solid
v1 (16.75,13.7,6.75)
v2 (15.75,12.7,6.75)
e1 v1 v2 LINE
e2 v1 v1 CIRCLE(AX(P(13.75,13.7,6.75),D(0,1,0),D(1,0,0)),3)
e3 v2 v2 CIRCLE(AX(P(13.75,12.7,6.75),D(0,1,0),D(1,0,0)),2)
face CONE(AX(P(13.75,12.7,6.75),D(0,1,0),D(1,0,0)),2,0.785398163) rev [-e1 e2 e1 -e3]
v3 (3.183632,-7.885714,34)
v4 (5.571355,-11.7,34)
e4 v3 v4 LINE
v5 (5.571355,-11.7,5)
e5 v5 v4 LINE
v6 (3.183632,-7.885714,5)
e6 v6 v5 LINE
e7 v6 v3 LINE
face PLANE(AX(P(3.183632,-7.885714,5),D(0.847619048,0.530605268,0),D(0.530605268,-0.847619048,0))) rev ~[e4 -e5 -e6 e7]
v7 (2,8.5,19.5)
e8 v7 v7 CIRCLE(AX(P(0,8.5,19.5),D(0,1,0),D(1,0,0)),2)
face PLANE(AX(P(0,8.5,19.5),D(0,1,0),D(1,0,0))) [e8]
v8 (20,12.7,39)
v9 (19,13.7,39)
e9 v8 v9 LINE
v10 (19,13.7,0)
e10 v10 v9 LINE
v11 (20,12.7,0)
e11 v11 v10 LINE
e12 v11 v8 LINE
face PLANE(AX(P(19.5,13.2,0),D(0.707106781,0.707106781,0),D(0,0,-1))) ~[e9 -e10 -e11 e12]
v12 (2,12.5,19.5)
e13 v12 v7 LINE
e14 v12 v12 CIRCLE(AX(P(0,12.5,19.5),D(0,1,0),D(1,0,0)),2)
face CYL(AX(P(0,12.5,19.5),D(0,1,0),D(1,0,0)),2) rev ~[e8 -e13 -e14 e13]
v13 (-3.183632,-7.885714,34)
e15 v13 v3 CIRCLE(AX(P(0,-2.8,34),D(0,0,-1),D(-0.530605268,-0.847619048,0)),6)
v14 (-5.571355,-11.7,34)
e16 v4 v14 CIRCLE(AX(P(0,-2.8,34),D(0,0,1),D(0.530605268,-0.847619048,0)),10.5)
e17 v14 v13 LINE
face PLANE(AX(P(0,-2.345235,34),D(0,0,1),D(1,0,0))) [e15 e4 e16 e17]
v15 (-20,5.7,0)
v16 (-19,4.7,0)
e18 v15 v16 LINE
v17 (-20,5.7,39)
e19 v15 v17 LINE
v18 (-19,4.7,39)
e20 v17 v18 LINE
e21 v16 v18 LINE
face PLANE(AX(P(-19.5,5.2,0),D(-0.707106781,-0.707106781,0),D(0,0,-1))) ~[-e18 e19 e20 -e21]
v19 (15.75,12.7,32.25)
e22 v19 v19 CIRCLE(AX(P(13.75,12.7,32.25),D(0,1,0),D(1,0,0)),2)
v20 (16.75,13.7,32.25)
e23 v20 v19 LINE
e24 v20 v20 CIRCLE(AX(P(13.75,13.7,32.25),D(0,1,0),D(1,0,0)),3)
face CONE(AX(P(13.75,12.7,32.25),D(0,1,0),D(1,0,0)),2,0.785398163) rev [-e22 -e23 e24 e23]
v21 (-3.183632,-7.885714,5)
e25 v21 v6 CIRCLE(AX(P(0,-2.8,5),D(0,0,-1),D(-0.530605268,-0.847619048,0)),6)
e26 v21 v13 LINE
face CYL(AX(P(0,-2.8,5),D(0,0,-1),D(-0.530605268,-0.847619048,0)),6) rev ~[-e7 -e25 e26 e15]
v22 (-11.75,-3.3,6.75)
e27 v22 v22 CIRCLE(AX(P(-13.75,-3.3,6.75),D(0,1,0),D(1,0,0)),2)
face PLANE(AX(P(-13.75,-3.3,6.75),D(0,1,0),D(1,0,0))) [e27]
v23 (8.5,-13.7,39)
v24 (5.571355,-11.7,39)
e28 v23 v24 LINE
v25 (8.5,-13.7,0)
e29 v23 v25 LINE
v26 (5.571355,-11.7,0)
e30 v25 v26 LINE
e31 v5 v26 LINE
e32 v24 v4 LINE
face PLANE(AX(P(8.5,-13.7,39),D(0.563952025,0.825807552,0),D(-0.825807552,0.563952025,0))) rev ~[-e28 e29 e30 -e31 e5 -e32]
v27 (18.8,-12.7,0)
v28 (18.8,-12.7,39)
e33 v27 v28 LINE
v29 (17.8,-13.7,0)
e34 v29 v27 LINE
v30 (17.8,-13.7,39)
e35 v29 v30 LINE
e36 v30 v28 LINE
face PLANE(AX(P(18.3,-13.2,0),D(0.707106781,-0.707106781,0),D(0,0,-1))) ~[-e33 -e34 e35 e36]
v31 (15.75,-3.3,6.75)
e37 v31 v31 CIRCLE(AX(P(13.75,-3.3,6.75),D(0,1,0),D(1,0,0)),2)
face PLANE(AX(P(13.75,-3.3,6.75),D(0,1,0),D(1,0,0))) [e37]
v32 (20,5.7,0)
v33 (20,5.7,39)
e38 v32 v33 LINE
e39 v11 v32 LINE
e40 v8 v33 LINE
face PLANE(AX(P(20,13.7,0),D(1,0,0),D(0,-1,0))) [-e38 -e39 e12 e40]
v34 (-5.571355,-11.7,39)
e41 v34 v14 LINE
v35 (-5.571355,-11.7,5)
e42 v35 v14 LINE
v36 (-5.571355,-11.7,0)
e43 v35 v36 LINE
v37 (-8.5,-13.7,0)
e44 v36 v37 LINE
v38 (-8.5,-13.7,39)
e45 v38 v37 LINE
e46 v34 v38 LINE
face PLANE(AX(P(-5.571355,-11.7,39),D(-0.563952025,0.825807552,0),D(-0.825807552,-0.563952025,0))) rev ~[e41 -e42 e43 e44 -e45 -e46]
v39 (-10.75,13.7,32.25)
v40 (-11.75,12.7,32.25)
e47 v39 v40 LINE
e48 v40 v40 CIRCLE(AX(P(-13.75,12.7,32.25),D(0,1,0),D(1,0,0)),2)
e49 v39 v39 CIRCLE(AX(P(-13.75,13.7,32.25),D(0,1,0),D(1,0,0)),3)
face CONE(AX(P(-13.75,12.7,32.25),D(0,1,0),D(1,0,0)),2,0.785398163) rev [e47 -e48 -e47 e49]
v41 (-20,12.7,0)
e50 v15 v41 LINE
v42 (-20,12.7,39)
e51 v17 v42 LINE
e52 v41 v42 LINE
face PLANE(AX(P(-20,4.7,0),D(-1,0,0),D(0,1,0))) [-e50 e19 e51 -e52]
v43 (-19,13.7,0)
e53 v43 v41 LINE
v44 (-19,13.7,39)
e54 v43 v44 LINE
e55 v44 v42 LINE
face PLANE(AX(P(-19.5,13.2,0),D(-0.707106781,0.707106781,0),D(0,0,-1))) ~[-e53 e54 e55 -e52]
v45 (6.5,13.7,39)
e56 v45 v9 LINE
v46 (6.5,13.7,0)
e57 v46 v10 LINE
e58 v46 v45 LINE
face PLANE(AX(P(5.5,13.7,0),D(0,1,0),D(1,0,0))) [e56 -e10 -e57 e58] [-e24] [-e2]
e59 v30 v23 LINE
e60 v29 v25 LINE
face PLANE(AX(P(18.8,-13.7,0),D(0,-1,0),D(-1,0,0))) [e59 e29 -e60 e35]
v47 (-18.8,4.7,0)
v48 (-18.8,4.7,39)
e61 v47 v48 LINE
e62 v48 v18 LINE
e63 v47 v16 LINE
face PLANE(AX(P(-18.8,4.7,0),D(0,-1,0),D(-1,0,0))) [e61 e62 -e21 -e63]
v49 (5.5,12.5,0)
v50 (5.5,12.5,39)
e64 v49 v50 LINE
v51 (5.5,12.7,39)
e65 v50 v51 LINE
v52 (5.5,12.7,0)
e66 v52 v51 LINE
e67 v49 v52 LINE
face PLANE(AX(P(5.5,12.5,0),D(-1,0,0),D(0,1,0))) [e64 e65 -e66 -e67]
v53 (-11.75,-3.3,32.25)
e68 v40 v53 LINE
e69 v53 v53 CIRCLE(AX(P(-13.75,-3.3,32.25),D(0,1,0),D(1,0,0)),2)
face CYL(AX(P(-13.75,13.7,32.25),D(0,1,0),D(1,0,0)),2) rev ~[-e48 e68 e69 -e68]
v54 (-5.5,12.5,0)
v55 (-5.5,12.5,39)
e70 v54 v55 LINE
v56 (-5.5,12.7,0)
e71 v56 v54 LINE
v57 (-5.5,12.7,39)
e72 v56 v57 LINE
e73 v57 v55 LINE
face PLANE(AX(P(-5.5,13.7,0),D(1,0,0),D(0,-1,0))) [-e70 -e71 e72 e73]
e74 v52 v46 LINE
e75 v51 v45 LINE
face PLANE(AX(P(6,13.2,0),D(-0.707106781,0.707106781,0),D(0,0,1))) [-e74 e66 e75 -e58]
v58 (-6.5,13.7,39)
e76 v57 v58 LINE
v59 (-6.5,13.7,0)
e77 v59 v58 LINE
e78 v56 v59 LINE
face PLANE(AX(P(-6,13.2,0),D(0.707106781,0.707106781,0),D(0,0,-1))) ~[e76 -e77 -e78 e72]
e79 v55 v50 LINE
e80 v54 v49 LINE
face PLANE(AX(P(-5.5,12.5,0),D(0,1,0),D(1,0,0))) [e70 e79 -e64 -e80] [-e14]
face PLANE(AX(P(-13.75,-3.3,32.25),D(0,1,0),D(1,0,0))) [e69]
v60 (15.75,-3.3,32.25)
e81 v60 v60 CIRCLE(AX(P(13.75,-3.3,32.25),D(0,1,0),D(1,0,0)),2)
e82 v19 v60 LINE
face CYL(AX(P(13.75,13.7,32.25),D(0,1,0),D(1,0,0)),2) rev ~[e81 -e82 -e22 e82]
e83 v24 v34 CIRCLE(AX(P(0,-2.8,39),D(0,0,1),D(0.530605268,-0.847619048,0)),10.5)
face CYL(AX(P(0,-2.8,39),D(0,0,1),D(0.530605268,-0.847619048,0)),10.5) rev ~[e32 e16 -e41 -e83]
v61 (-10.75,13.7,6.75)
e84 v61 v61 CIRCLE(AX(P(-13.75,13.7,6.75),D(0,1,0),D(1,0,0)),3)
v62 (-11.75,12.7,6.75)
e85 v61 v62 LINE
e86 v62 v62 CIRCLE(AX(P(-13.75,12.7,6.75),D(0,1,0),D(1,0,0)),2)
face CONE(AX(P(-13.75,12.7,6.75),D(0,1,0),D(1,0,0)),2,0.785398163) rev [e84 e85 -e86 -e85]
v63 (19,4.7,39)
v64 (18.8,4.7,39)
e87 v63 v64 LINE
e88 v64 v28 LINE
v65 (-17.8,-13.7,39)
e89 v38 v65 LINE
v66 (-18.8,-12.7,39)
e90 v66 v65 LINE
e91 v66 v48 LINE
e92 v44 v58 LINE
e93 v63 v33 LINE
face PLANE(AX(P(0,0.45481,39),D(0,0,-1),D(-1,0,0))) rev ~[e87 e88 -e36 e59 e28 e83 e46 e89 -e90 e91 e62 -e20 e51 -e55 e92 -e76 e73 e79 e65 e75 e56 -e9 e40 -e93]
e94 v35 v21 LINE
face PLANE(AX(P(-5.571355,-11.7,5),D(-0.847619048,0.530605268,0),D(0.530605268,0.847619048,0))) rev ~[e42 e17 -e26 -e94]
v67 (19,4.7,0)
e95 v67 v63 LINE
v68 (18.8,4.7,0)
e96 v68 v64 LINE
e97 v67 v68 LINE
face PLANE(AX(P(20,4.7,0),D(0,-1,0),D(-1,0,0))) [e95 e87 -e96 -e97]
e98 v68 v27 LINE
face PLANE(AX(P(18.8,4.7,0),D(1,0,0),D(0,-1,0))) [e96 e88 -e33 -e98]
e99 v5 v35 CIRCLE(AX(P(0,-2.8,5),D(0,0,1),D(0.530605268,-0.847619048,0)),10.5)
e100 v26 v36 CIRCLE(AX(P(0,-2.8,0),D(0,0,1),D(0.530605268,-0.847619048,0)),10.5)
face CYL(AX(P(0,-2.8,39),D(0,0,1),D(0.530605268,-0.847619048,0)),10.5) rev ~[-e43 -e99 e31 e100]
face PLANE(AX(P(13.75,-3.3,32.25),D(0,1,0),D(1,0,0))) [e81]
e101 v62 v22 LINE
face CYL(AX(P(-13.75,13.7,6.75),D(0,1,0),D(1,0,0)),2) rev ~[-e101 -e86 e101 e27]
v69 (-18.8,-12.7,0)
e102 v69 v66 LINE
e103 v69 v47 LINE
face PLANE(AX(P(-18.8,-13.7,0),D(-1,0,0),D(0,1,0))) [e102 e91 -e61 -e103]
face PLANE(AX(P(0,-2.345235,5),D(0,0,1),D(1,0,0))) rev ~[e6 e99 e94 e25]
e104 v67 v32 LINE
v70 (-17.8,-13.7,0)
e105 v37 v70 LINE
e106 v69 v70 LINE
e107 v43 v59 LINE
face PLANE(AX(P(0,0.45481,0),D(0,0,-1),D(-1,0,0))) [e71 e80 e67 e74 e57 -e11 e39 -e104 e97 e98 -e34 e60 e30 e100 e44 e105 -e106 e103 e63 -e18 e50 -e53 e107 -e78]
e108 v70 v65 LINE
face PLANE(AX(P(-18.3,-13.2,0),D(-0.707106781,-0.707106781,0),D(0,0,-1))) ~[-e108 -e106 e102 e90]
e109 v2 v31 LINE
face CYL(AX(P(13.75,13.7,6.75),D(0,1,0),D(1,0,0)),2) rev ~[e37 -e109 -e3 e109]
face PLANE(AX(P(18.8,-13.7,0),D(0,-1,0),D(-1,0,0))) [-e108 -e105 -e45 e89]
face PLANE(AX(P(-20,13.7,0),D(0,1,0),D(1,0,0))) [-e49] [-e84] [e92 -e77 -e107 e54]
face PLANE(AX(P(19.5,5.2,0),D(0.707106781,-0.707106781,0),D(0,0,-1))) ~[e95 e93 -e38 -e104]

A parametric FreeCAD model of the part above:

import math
import FreeCAD as App
import Part
import Sketcher
from FreeCAD import Vector


def edges_at(feature, points):
    """Names of the edges that pass closest to the given points."""
    edges = feature.Shape.Edges
    near = lambda p: min(range(len(edges)), key=lambda i: edges[i].distToShape(Part.Vertex(*p))[0])
    return sorted({f"Edge{near(p) + 1}" for p in points})


def add_polygon(sketch, points):
    """Adds a closed chain of lines whose ends are joined by coincident constraints."""
    first, n = sketch.GeometryCount, len(points)
    for a, b in zip(points, points[1:] + points[:1]):
        sketch.addGeometry(Part.LineSegment(App.Vector(*a, 0), App.Vector(*b, 0)), False)
    for i in range(n):
        sketch.addConstraint(Sketcher.Constraint("Coincident", first + i, 2, first + (i + 1) % n, 1))

doc = App.newDocument("Part")
body = doc.addObject("PartDesign::Body", "Body")

sketch1 = body.newObject("Sketcher::SketchObject", "Sketch")
sketch1.AttachmentSupport = (doc.getObject("XY_Plane"), [""])
sketch1.MapMode = "FlatFace"
add_polygon(sketch1, [(-5.5, 12.5), (-5.5, 13.7), (-20, 13.7), (-20, 4.7), (-18.8, 4.7), (-18.8, -13.7), (18.8, -13.7), (18.8, 4.7), (20, 4.7), (20, 13.7), (5.5, 13.7), (5.5, 12.5)])
sketch1.addConstraint([
    Sketcher.Constraint("Vertical", 0),
    Sketcher.Constraint("Horizontal", 1),
    Sketcher.Constraint("Vertical", 2),
    Sketcher.Constraint("Horizontal", 3),
    Sketcher.Constraint("Vertical", 4),
    Sketcher.Constraint("Horizontal", 5),
    Sketcher.Constraint("Vertical", 6),
    Sketcher.Constraint("Horizontal", 7),
    Sketcher.Constraint("Vertical", 8),
    Sketcher.Constraint("Horizontal", 9),
    Sketcher.Constraint("Vertical", 10),
    Sketcher.Constraint("Horizontal", 11),
    Sketcher.Constraint("Symmetric", 3, 2, 6, 2, -2),
    Sketcher.Constraint("Symmetric", 1, 2, 8, 2, -2),
    Sketcher.Constraint("Equal", 1, 9),
    Sketcher.Constraint("Equal", 7, 0),
    Sketcher.Constraint("DistanceX", 11, 2, 11, 1, 11.0),
    Sketcher.Constraint("DistanceY", 2, 2, 2, 1, 9.0),
    Sketcher.Constraint("DistanceX", 1, 2, 1, 1, 14.5),
    Sketcher.Constraint("DistanceX", 3, 1, 3, 2, 1.2),
    Sketcher.Constraint("DistanceY", 4, 2, 4, 1, 18.4),
    Sketcher.Constraint("DistanceY", -1, 1, 0, 2, 13.7),
])
pad1 = body.newObject("PartDesign::Pad", "Pad")
pad1.Profile = sketch1
pad1.Length = 39

sketch2 = body.newObject("Sketcher::SketchObject", "Sketch001")
sketch2.AttachmentSupport = (doc.getObject("XY_Plane"), [""])
sketch2.MapMode = "FlatFace"
sketch2.AttachmentOffset = App.Placement(Vector(0, 0, 39), App.Rotation())
sketch2.addGeometry([
    Part.LineSegment(Vector(-5.571355, -11.7, 0), Vector(-8.5, -13.7, 0)),
    Part.LineSegment(Vector(-8.5, -13.7, 0), Vector(8.5, -13.7, 0)),
    Part.LineSegment(Vector(8.5, -13.7, 0), Vector(5.571355, -11.7, 0)),
    Part.ArcOfCircle(Part.Circle(Vector(0, -2.8, 0), Vector(0, 0, 1), 10.5), math.radians(-57.953641), math.radians(237.953641)),
], False)
sketch2.addConstraint([
    Sketcher.Constraint("Coincident", 0, 2, 1, 1),
    Sketcher.Constraint("Coincident", 1, 2, 2, 1),
    Sketcher.Constraint("Coincident", 2, 2, 3, 1),
    Sketcher.Constraint("Coincident", 3, 2, 0, 1),
    Sketcher.Constraint("Horizontal", 1),
    Sketcher.Constraint("Symmetric", 2, 2, 3, 2, -2),
    Sketcher.Constraint("Equal", 0, 2),
    Sketcher.Constraint("Radius", 3, 10.5),
    Sketcher.Constraint("DistanceX", 1, 1, 1, 2, 17.0),
    Sketcher.Constraint("DistanceY", 1, 2, 2, 2, 2.0),
    Sketcher.Constraint("DistanceY", 3, 3, -1, 1, 2.8),
    Sketcher.Constraint("DistanceY", 0, 2, -1, 1, 13.7),
])
pocket1 = body.newObject("PartDesign::Pocket", "Pocket")
pocket1.Profile = sketch2
pocket1.Length = 39

sketch3 = body.newObject("Sketcher::SketchObject", "Sketch002")
sketch3.AttachmentSupport = (doc.getObject("XY_Plane"), [""])
sketch3.MapMode = "FlatFace"
sketch3.AttachmentOffset = App.Placement(Vector(0, 0, 5), App.Rotation())
sketch3.addGeometry([
    Part.LineSegment(Vector(5.571355, -11.7, 0), Vector(3.183632, -7.885714, 0)),
    Part.ArcOfCircle(Part.Circle(Vector(0, -2.8, 0), Vector(0, 0, 1), 6), math.radians(-57.953641), math.radians(237.953641)),
    Part.LineSegment(Vector(-3.183632, -7.885714, 0), Vector(-5.571355, -11.7, 0)),
    Part.ArcOfCircle(Part.Circle(Vector(0, -2.8, 0), Vector(0, 0, 1), 10.5), math.radians(-57.953641), math.radians(237.953641)),
], False)
sketch3.addConstraint([
    Sketcher.Constraint("Coincident", 0, 2, 1, 1),
    Sketcher.Constraint("Coincident", 1, 2, 2, 1),
    Sketcher.Constraint("Coincident", 2, 2, 3, 2),
    Sketcher.Constraint("Coincident", 3, 1, 0, 1),
    Sketcher.Constraint("Coincident", 3, 3, 1, 3),
    Sketcher.Constraint("Symmetric", 0, 2, 1, 2, -2),
    Sketcher.Constraint("Horizontal", 2, 2, 3, 1),
    Sketcher.Constraint("Radius", 1, 6.0),
    Sketcher.Constraint("Radius", 3, 10.5),
    Sketcher.Constraint("DistanceY", 1, 3, -1, 1, 2.8),
    Sketcher.Constraint("DistanceY", 2, 2, -1, 1, 11.7),
    Sketcher.Constraint("DistanceX", -1, 1, 0, 2, 3.183632),
])
pad2 = body.newObject("PartDesign::Pad", "Pad001")
pad2.Profile = sketch3
pad2.Length = 29

sketch4 = body.newObject("Sketcher::SketchObject", "Sketch003")
sketch4.AttachmentSupport = (doc.getObject("XZ_Plane"), [""])
sketch4.MapMode = "FlatFace"
sketch4.AttachmentOffset = App.Placement(Vector(0, 0, -13.7), App.Rotation())
sketch4.addGeometry([
    Part.Circle(Vector(13.75, 32.25, 0), Vector(0, 0, 1), 2),
    Part.Circle(Vector(-13.75, 32.25, 0), Vector(0, 0, 1), 2),
    Part.Circle(Vector(13.75, 6.75, 0), Vector(0, 0, 1), 2),
    Part.Circle(Vector(-13.75, 6.75, 0), Vector(0, 0, 1), 2),
], False)
sketch4.addConstraint([
    Sketcher.Constraint("Equal", 0, 1),
    Sketcher.Constraint("Equal", 1, 2),
    Sketcher.Constraint("Equal", 2, 3),
    Sketcher.Constraint("Symmetric", 0, 3, 1, 3, -2),
    Sketcher.Constraint("Symmetric", 2, 3, 3, 3, -2),
    Sketcher.Constraint("Vertical", 0, 3, 2, 3),
    Sketcher.Constraint("Diameter", 0, 4.0),
    Sketcher.Constraint("DistanceX", 1, 3, 0, 3, 27.5),
    Sketcher.Constraint("DistanceY", 2, 3, 0, 3, 25.5),
    Sketcher.Constraint("DistanceY", -1, 1, 0, 3, 32.25),
])
pocket2 = body.newObject("PartDesign::Pocket", "Pocket001")
pocket2.Profile = sketch4
pocket2.Length = 17
pocket2.Reversed = True

sketch5 = body.newObject("Sketcher::SketchObject", "Sketch004")
sketch5.AttachmentSupport = (doc.getObject("XZ_Plane"), [""])
sketch5.MapMode = "FlatFace"
sketch5.AttachmentOffset = App.Placement(Vector(0, 0, -12.5), App.Rotation())
sketch5.addGeometry(Part.Circle(Vector(0, 19.5, 0), Vector(0, 0, 1), 2), False)
sketch5.addConstraint([
    Sketcher.Constraint("PointOnObject", 0, 3, -2),
    Sketcher.Constraint("Diameter", 0, 4.0),
    Sketcher.Constraint("DistanceY", -1, 1, 0, 3, 19.5),
])
pocket3 = body.newObject("PartDesign::Pocket", "Pocket002")
pocket3.Profile = sketch5
pocket3.Length = 4
pocket3.Reversed = True
doc.recompute()

chamfer = body.newObject("PartDesign::Chamfer", "Chamfer")
chamfer.Base = (pocket3, edges_at(pocket3, [
    (20, 4.7, 19.5),
    (18.8, -13.7, 19.5),
    (-18.8, -13.7, 19.5),
    (-20, 4.7, 19.5),
    (-20, 13.7, 19.5),
    (-5.5, 13.7, 19.5),
    (5.5, 13.7, 19.5),
    (20, 13.7, 19.5),
    (11.75, 13.7, 32.25),
    (-15.75, 13.7, 32.25),
    (11.75, 13.7, 6.75),
    (-15.75, 13.7, 6.75),
]))
chamfer.Size = 1

doc.recompute()
